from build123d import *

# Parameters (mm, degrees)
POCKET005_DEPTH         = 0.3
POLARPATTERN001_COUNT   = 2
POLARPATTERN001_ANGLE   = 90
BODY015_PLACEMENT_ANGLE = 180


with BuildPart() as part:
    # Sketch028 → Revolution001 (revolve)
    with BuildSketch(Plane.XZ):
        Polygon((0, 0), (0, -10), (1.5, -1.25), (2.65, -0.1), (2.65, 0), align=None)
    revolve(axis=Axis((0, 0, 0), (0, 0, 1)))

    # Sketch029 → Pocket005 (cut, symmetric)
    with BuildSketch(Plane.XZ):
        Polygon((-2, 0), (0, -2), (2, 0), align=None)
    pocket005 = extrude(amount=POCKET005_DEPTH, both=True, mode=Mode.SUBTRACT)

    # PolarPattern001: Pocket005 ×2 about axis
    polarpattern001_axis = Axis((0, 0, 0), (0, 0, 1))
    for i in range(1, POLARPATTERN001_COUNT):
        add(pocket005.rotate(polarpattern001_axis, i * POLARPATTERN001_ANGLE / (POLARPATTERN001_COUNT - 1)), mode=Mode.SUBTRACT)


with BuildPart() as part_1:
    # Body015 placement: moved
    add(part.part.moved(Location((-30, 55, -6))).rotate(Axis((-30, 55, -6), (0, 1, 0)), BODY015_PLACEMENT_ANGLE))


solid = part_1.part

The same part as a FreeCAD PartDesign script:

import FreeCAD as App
import Part
import Sketcher
from FreeCAD import Vector
Q = App.Units.Quantity

doc = App.newDocument("Part")
body = doc.addObject("PartDesign::Body", "Body")

sketch1 = body.newObject("Sketcher::SketchObject", "Sketch")
sketch1.AttachmentSupport = (doc.getObject("XZ_Plane"), [""])
sketch1.MapMode = "FlatFace"
sketch1.addGeometry(Part.LineSegment(Vector(0, 0, 0), Vector(0, -10, 0)), False)
sketch1.addGeometry(Part.LineSegment(Vector(0, -10, 0), Vector(1.5, -1.25, 0)), False)
sketch1.addGeometry(Part.LineSegment(Vector(1.5, -1.25, 0), Vector(2.65, -0.1, 0)), False)
sketch1.addGeometry(Part.LineSegment(Vector(2.65, -0.1, 0), Vector(2.65, 0, 0)), False)
sketch1.addGeometry(Part.LineSegment(Vector(2.65, 0, 0), Vector(0, 0, 0)), False)
sketch1.addConstraint(Sketcher.Constraint("Coincident", 0, 2, 1, 1))
sketch1.addConstraint(Sketcher.Constraint("Coincident", 1, 2, 2, 1))
sketch1.addConstraint(Sketcher.Constraint("Coincident", 2, 2, 3, 1))
sketch1.addConstraint(Sketcher.Constraint("Coincident", 3, 2, 4, 1))
sketch1.addConstraint(Sketcher.Constraint("Coincident", 4, 2, 0, 1))
sketch1.addConstraint(Sketcher.Constraint("Vertical", 0))
sketch1.addConstraint(Sketcher.Constraint("Vertical", 3))
sketch1.addConstraint(Sketcher.Constraint("Horizontal", 4))
sketch1.addConstraint(Sketcher.Constraint("Coincident", 4, 2, -1, 1))
sketch1.addConstraint(Sketcher.Constraint("DistanceY", 0, 2, 0, 1, 10.0))
sketch1.addConstraint(Sketcher.Constraint("Angle", 2, Q("45 deg")))
sketch1.addConstraint(Sketcher.Constraint("DistanceY", 3, 1, 3, 2, 0.1))
sketch1.addConstraint(Sketcher.Constraint("DistanceX", 4, 2, 4, 1, 2.65))
sketch1.addConstraint(Sketcher.Constraint("DistanceX", -1, 1, 1, 2, 1.5))
revolution = body.newObject("PartDesign::Revolution", "Revolution")
revolution.Profile = sketch1
revolution.ReferenceAxis = (sketch1, ["V_Axis"])
revolution.Angle = 360

sketch2 = body.newObject("Sketcher::SketchObject", "Sketch001")
sketch2.AttachmentSupport = (doc.getObject("XZ_Plane"), [""])
sketch2.MapMode = "FlatFace"
sketch2.addGeometry(Part.LineSegment(Vector(-2, 0, 0), Vector(0, -2, 0)), False)
sketch2.addGeometry(Part.LineSegment(Vector(0, -2, 0), Vector(2, 0, 0)), False)
sketch2.addGeometry(Part.LineSegment(Vector(2, 0, 0), Vector(-2, 0, 0)), False)
sketch2.addConstraint(Sketcher.Constraint("Coincident", 0, 2, 1, 1))
sketch2.addConstraint(Sketcher.Constraint("Coincident", 1, 2, 2, 1))
sketch2.addConstraint(Sketcher.Constraint("Coincident", 2, 2, 0, 1))
sketch2.addConstraint(Sketcher.Constraint("Horizontal", 2))
sketch2.addConstraint(Sketcher.Constraint("Symmetric", 1, 2, 2, 2, -1, 1))
sketch2.addConstraint(Sketcher.Constraint("PointOnObject", 0, 2, -2))
sketch2.addConstraint(Sketcher.Constraint("Perpendicular", 0, 1))
sketch2.addConstraint(Sketcher.Constraint("DistanceX", 2, 2, 2, 1, 4.0))
pocket1 = body.newObject("PartDesign::Pocket", "Pocket")
pocket1.Profile = sketch2
pocket1.Length = 0.6
pocket1.Midplane = True
doc.recompute()

polarpattern = body.newObject("PartDesign::PolarPattern", "PolarPattern")
polarpattern.Originals = [pocket1]
polarpattern.Axis = (doc.getObject("Z_Axis"), [""])
polarpattern.Angle = 90
polarpattern.Occurrences = 2
body.Tip = polarpattern
body2 = doc.addObject("PartDesign::Body", "Body001")
doc.recompute()

body.Placement = App.Placement(Vector(-30, 55, -6), App.Rotation(Vector(0, 1, 0), 180))
boolean = body2.newObject("PartDesign::Boolean", "Boolean")
boolean.Type = "Fuse"
boolean.addObjects([body])

doc.recompute()
